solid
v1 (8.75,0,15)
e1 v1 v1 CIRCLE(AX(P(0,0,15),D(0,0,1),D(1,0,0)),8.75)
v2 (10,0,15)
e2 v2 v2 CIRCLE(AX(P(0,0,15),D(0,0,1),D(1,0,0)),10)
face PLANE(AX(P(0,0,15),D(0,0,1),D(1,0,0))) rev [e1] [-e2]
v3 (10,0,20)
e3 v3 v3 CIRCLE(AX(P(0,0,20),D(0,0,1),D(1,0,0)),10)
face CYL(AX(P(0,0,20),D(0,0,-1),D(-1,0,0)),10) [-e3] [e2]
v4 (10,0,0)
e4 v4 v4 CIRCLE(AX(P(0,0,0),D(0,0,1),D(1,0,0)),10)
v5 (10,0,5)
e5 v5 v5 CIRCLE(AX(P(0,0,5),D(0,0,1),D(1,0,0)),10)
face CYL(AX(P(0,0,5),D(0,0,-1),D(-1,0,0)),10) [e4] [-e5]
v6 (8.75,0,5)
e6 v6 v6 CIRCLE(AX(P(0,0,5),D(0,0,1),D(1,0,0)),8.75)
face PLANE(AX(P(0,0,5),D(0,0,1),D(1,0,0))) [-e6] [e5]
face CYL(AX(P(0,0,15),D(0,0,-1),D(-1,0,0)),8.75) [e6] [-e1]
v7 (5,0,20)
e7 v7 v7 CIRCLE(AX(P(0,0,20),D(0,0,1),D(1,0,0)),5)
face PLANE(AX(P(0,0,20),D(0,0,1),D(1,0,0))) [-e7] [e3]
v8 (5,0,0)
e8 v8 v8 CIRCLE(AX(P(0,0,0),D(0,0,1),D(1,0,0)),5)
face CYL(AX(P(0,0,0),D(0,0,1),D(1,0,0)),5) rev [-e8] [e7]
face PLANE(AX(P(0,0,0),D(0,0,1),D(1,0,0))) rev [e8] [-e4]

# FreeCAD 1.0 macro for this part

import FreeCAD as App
import Part
import Sketcher

V = App.Vector
Q = App.Units.Quantity

doc = App.newDocument("Part")
body = doc.addObject("PartDesign::Body", "Body")

# Sketch on XY plane
sketch1 = doc.addObject("Sketcher::SketchObject", "Sketch")
body.addObject(sketch1)
sketch1.AttachmentSupport = (doc.XY_Plane, [""])
sketch1.MapMode = "FlatFace"
sketch1.addGeometry(Part.Circle(V(0, 0, 0), V(0, 0, 1), 10), False)
sketch1.addConstraint([
    Sketcher.Constraint("Coincident", 0, 3, -1, 1),
    Sketcher.Constraint("Diameter", 0, Q("20 mm")),
])
pad1 = doc.addObject("PartDesign::Pad", "Pad")
body.addObject(pad1)
pad1.Profile = sketch1
pad1.Length = 5

# Sketch on XY plane
sketch2 = doc.addObject("Sketcher::SketchObject", "Sketch001")
body.addObject(sketch2)
sketch2.AttachmentSupport = (doc.XY_Plane, [""])
sketch2.MapMode = "FlatFace"
sketch2.AttachmentOffset = App.Placement(V(0, 0, 5), App.Rotation())
sketch2.addGeometry(Part.Circle(V(0, 0, 0), V(0, 0, 1), 8.75), False)
sketch2.addConstraint([
    Sketcher.Constraint("Coincident", 0, 3, -1, 1),
    Sketcher.Constraint("Diameter", 0, Q("17.5 mm")),
])
pad2 = doc.addObject("PartDesign::Pad", "Pad001")
body.addObject(pad2)
pad2.Profile = sketch2
pad2.Length = 10

# Sketch on XY plane
sketch3 = doc.addObject("Sketcher::SketchObject", "Sketch002")
body.addObject(sketch3)
sketch3.AttachmentSupport = (doc.XY_Plane, [""])
sketch3.MapMode = "FlatFace"
sketch3.AttachmentOffset = App.Placement(V(0, 0, 15), App.Rotation())
sketch3.addGeometry(Part.Circle(V(0, 0, 0), V(0, 0, 1), 10), False)
sketch3.addConstraint([
    Sketcher.Constraint("Coincident", 0, 3, -1, 1),
    Sketcher.Constraint("Diameter", 0, Q("20 mm")),
])
pad3 = doc.addObject("PartDesign::Pad", "Pad002")
body.addObject(pad3)
pad3.Profile = sketch3
pad3.Length = 5

# Sketch on XY plane
sketch4 = doc.addObject("Sketcher::SketchObject", "Sketch003")
body.addObject(sketch4)
sketch4.AttachmentSupport = (doc.XY_Plane, [""])
sketch4.MapMode = "FlatFace"
sketch4.AttachmentOffset = App.Placement(V(0, 0, 20), App.Rotation())
sketch4.addGeometry(Part.Circle(V(0, 0, 0), V(0, 0, 1), 5), False)
sketch4.addConstraint([
    Sketcher.Constraint("Coincident", 0, 3, -1, 1),
    Sketcher.Constraint("Diameter", 0, Q("10 mm")),
])
pocket1 = doc.addObject("PartDesign::Pocket", "Pocket")
body.addObject(pocket1)
pocket1.Profile = sketch4
pocket1.Type = "ThroughAll"

doc.recompute()
